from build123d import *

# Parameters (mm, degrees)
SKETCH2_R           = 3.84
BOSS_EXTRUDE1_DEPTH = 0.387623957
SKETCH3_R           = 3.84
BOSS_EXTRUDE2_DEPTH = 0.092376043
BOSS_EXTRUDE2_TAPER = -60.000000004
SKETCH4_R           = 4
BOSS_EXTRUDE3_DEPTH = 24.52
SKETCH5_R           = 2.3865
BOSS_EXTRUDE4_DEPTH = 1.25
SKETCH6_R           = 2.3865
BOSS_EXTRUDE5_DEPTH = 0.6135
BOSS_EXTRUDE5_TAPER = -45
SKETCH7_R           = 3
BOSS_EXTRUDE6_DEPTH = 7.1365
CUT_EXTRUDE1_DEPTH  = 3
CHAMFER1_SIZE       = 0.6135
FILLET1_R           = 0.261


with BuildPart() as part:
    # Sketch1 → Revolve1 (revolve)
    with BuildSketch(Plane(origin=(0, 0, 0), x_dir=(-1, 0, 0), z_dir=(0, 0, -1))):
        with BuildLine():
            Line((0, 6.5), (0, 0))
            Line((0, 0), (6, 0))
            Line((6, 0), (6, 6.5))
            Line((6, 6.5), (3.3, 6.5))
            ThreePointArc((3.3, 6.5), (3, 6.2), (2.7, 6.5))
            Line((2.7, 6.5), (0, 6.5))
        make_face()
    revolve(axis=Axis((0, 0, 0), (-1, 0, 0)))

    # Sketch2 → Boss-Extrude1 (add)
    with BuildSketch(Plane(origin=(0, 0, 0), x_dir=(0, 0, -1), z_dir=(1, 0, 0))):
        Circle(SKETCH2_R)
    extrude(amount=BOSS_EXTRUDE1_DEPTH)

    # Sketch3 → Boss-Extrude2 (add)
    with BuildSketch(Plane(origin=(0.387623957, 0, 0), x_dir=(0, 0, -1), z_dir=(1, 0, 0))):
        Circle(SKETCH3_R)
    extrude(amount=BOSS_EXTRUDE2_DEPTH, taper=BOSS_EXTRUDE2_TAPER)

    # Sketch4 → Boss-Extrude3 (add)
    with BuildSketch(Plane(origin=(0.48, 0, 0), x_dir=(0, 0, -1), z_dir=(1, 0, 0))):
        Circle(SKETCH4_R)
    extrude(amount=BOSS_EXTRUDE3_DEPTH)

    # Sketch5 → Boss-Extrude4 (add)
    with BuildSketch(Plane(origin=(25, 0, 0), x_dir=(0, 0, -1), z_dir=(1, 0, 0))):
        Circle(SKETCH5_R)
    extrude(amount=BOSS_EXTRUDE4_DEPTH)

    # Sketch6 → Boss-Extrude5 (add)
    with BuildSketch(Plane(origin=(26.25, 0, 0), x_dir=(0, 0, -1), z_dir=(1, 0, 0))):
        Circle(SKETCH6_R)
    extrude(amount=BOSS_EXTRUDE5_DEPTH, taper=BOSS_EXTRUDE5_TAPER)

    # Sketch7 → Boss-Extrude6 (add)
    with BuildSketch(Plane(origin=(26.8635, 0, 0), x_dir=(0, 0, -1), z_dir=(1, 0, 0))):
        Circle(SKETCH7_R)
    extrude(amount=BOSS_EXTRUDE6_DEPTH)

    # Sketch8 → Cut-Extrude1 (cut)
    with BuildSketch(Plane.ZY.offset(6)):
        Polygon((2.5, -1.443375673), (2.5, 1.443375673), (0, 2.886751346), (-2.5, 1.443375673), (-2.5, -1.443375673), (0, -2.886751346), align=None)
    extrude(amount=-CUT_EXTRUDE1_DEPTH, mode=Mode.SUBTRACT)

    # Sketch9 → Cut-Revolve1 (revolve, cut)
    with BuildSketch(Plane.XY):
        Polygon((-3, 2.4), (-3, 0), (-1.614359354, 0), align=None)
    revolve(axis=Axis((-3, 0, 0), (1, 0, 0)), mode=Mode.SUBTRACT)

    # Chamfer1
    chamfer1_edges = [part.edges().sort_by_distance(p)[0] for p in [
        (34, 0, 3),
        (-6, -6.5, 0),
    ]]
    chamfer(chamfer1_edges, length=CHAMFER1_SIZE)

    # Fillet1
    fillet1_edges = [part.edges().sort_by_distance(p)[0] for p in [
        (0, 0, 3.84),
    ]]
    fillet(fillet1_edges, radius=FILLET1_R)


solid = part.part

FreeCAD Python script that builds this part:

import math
import FreeCAD as App
import Part
import Sketcher
from FreeCAD import Vector
Q = App.Units.Quantity


def edges_at(feature, points):
    """Names of the edges that pass closest to the given points."""
    edges = feature.Shape.Edges
    near = lambda p: min(range(len(edges)), key=lambda i: edges[i].distToShape(Part.Vertex(*p))[0])
    return sorted({f"Edge{near(p) + 1}" for p in points})

doc = App.newDocument("Part")
body = doc.addObject("PartDesign::Body", "Body")

sketch1 = doc.addObject("Sketcher::SketchObject", "Sketch")
body.addObject(sketch1)
sketch1.AttachmentSupport = (doc.XY_Plane, [""])
sketch1.MapMode = "FlatFace"
sketch1.addGeometry(Part.LineSegment(Vector(0, 6.5, 0), Vector(0, 0, 0)), False)
sketch1.addGeometry(Part.LineSegment(Vector(0, 0, 0), Vector(-6, 0, 0)), False)
sketch1.addGeometry(Part.LineSegment(Vector(-6, 0, 0), Vector(-6, 6.5, 0)), False)
sketch1.addGeometry(Part.LineSegment(Vector(-6, 6.5, 0), Vector(-3.3, 6.5, 0)), False)
sketch1.addGeometry(Part.ArcOfCircle(Part.Circle(Vector(-3, 6.5, 0), Vector(0, 0, 1), 0.3), math.radians(180), math.radians(360)), False)
sketch1.addGeometry(Part.LineSegment(Vector(-2.7, 6.5, 0), Vector(0, 6.5, 0)), False)
sketch1.addConstraint(Sketcher.Constraint("Coincident", 0, 2, 1, 1))
sketch1.addConstraint(Sketcher.Constraint("Coincident", 1, 2, 2, 1))
sketch1.addConstraint(Sketcher.Constraint("Coincident", 2, 2, 3, 1))
sketch1.addConstraint(Sketcher.Constraint("Coincident", 3, 2, 4, 1))
sketch1.addConstraint(Sketcher.Constraint("Coincident", 4, 2, 5, 1))
sketch1.addConstraint(Sketcher.Constraint("Coincident", 5, 2, 0, 1))
sketch1.addConstraint(Sketcher.Constraint("Vertical", 0))
sketch1.addConstraint(Sketcher.Constraint("Horizontal", 1))
sketch1.addConstraint(Sketcher.Constraint("Vertical", 2))
sketch1.addConstraint(Sketcher.Constraint("Horizontal", 3))
sketch1.addConstraint(Sketcher.Constraint("Horizontal", 5))
sketch1.addConstraint(Sketcher.Constraint("Coincident", 0, 2, -1, 1))
sketch1.addConstraint(Sketcher.Constraint("Horizontal", 4, 3, 2, 2))
sketch1.addConstraint(Sketcher.Constraint("Horizontal", 3, 2, 4, 2))
sketch1.addConstraint(Sketcher.Constraint("Equal", 3, 5))
sketch1.addConstraint(Sketcher.Constraint("Radius", 4, 0.3))
sketch1.addConstraint(Sketcher.Constraint("DistanceX", 1, 2, 1, 1, 6.0))
sketch1.addConstraint(Sketcher.Constraint("DistanceY", 0, 2, 0, 1, 6.5))
revolution = doc.addObject("PartDesign::Revolution", "Revolution")
body.addObject(revolution)
revolution.Profile = sketch1
revolution.ReferenceAxis = (sketch1, ["H_Axis"])
revolution.Angle = 360

sketch2 = doc.addObject("Sketcher::SketchObject", "Sketch001")
body.addObject(sketch2)
sketch2.AttachmentSupport = (doc.YZ_Plane, [""])
sketch2.MapMode = "FlatFace"
sketch2.addGeometry(Part.Circle(Vector(0, 0, 0), Vector(0, 0, 1), 3.8), False)
sketch2.addConstraint(Sketcher.Constraint("Coincident", 0, 3, -1, 1))
sketch2.addConstraint(Sketcher.Constraint("Diameter", 0, 7.68))
pad1 = doc.addObject("PartDesign::Pad", "Pad")
body.addObject(pad1)
pad1.Profile = sketch2
pad1.Length = 0.387624

sketch3 = doc.addObject("Sketcher::SketchObject", "Sketch002")
body.addObject(sketch3)
sketch3.AttachmentSupport = (doc.YZ_Plane, [""])
sketch3.MapMode = "FlatFace"
sketch3.AttachmentOffset = App.Placement(Vector(0, 0, 0.387624), App.Rotation())
sketch3.addGeometry(Part.Circle(Vector(0, 0, 0), Vector(0, 0, 1), 3.8), False)
sketch3.addConstraint(Sketcher.Constraint("Coincident", 0, 3, -1, 1))
sketch3.addConstraint(Sketcher.Constraint("Diameter", 0, 7.68))
pad2 = doc.addObject("PartDesign::Pad", "Pad001")
body.addObject(pad2)
pad2.Profile = sketch3
pad2.Length = 0.092376
pad2.TaperAngle = 60

sketch4 = doc.addObject("Sketcher::SketchObject", "Sketch003")
body.addObject(sketch4)
sketch4.AttachmentSupport = (doc.YZ_Plane, [""])
sketch4.MapMode = "FlatFace"
sketch4.AttachmentOffset = App.Placement(Vector(0, 0, 0.48), App.Rotation())
sketch4.addGeometry(Part.Circle(Vector(0, 0, 0), Vector(0, 0, 1), 4), False)
sketch4.addConstraint(Sketcher.Constraint("Coincident", 0, 3, -1, 1))
sketch4.addConstraint(Sketcher.Constraint("Diameter", 0, 8.0))
pad3 = doc.addObject("PartDesign::Pad", "Pad002")
body.addObject(pad3)
pad3.Profile = sketch4
pad3.Length = 24.52

sketch5 = doc.addObject("Sketcher::SketchObject", "Sketch004")
body.addObject(sketch5)
sketch5.AttachmentSupport = (doc.YZ_Plane, [""])
sketch5.MapMode = "FlatFace"
sketch5.AttachmentOffset = App.Placement(Vector(0, 0, 25), App.Rotation())
sketch5.addGeometry(Part.Circle(Vector(0, 0, 0), Vector(0, 0, 1), 2.4), False)
sketch5.addConstraint(Sketcher.Constraint("Coincident", 0, 3, -1, 1))
sketch5.addConstraint(Sketcher.Constraint("Diameter", 0, 4.773))
pad4 = doc.addObject("PartDesign::Pad", "Pad003")
body.addObject(pad4)
pad4.Profile = sketch5
pad4.Length = 1.25

sketch6 = doc.addObject("Sketcher::SketchObject", "Sketch005")
body.addObject(sketch6)
sketch6.AttachmentSupport = (doc.YZ_Plane, [""])
sketch6.MapMode = "FlatFace"
sketch6.AttachmentOffset = App.Placement(Vector(0, 0, 26.25), App.Rotation())
sketch6.addGeometry(Part.Circle(Vector(0, 0, 0), Vector(0, 0, 1), 2.4), False)
sketch6.addConstraint(Sketcher.Constraint("Coincident", 0, 3, -1, 1))
sketch6.addConstraint(Sketcher.Constraint("Diameter", 0, 4.773))
pad5 = doc.addObject("PartDesign::Pad", "Pad004")
body.addObject(pad5)
pad5.Profile = sketch6
pad5.Length = 0.6135
pad5.TaperAngle = 45

sketch7 = doc.addObject("Sketcher::SketchObject", "Sketch006")
body.addObject(sketch7)
sketch7.AttachmentSupport = (doc.YZ_Plane, [""])
sketch7.MapMode = "FlatFace"
sketch7.AttachmentOffset = App.Placement(Vector(0, 0, 26.8635), App.Rotation())
sketch7.addGeometry(Part.Circle(Vector(0, 0, 0), Vector(0, 0, 1), 3), False)
sketch7.addConstraint(Sketcher.Constraint("Coincident", 0, 3, -1, 1))
sketch7.addConstraint(Sketcher.Constraint("Diameter", 0, 6.0))
pad6 = doc.addObject("PartDesign::Pad", "Pad005")
body.addObject(pad6)
pad6.Profile = sketch7
pad6.Length = 7.1365

sketch8 = doc.addObject("Sketcher::SketchObject", "Sketch007")
body.addObject(sketch8)
sketch8.AttachmentSupport = (doc.YZ_Plane, [""])
sketch8.MapMode = "FlatFace"
sketch8.AttachmentOffset = App.Placement(Vector(0, 0, -6), App.Rotation())
sketch8.addGeometry(Part.LineSegment(Vector(-1.4, 2.5, 0), Vector(1.4, 2.5, 0)), False)
sketch8.addGeometry(Part.LineSegment(Vector(1.4, 2.5, 0), Vector(2.9, 0, 0)), False)
sketch8.addGeometry(Part.LineSegment(Vector(2.9, 0, 0), Vector(1.4, -2.5, 0)), False)
sketch8.addGeometry(Part.LineSegment(Vector(1.4, -2.5, 0), Vector(-1.4, -2.5, 0)), False)
sketch8.addGeometry(Part.LineSegment(Vector(-1.4, -2.5, 0), Vector(-2.9, 0, 0)), False)
sketch8.addGeometry(Part.LineSegment(Vector(-2.9, 0, 0), Vector(-1.4, 2.5, 0)), False)
sketch8.addConstraint(Sketcher.Constraint("Coincident", 0, 2, 1, 1))
sketch8.addConstraint(Sketcher.Constraint("Coincident", 1, 2, 2, 1))
sketch8.addConstraint(Sketcher.Constraint("Coincident", 2, 2, 3, 1))
sketch8.addConstraint(Sketcher.Constraint("Coincident", 3, 2, 4, 1))
sketch8.addConstraint(Sketcher.Constraint("Coincident", 4, 2, 5, 1))
sketch8.addConstraint(Sketcher.Constraint("Coincident", 5, 2, 0, 1))
sketch8.addConstraint(Sketcher.Constraint("Horizontal", 0))
sketch8.addConstraint(Sketcher.Constraint("Horizontal", 3))
sketch8.addConstraint(Sketcher.Constraint("Symmetric", 0, 2, 3, 2, -1, 1))
sketch8.addConstraint(Sketcher.Constraint("Symmetric", 1, 2, 4, 2, -1, 1))
sketch8.addConstraint(Sketcher.Constraint("PointOnObject", 1, 2, -1))
sketch8.addConstraint(Sketcher.Constraint("Parallel", 2, 5))
sketch8.addConstraint(Sketcher.Constraint("Vertical", 0, 2, 2, 2))
sketch8.addConstraint(Sketcher.Constraint("Angle", 1, Q("-60 deg")))
sketch8.addConstraint(Sketcher.Constraint("DistanceY", 2, 2, 0, 2, 5.0))
sketch8.addConstraint(Sketcher.Constraint("DistanceX", 0, 1, 0, 2, 2.886751))
pocket1 = doc.addObject("PartDesign::Pocket", "Pocket")
body.addObject(pocket1)
pocket1.Profile = sketch8
pocket1.Length = 3
pocket1.Reversed = True

sketch9 = doc.addObject("Sketcher::SketchObject", "Sketch008")
body.addObject(sketch9)
sketch9.AttachmentSupport = (doc.XY_Plane, [""])
sketch9.MapMode = "FlatFace"
sketch9.addGeometry(Part.LineSegment(Vector(-3, 2.4, 0), Vector(-3, 0, 0)), False)
sketch9.addGeometry(Part.LineSegment(Vector(-3, 0, 0), Vector(-1.6, 0, 0)), False)
sketch9.addGeometry(Part.LineSegment(Vector(-1.6, 0, 0), Vector(-3, 2.4, 0)), False)
sketch9.addConstraint(Sketcher.Constraint("Coincident", 0, 2, 1, 1))
sketch9.addConstraint(Sketcher.Constraint("Coincident", 1, 2, 2, 1))
sketch9.addConstraint(Sketcher.Constraint("Coincident", 2, 2, 0, 1))
sketch9.addConstraint(Sketcher.Constraint("Vertical", 0))
sketch9.addConstraint(Sketcher.Constraint("Horizontal", 1))
sketch9.addConstraint(Sketcher.Constraint("PointOnObject", 0, 2, -1))
sketch9.addConstraint(Sketcher.Constraint("Angle", 2, Q("120 deg")))
sketch9.addConstraint(Sketcher.Constraint("DistanceY", 0, 2, 0, 1, 2.4))
sketch9.addConstraint(Sketcher.Constraint("DistanceX", 0, 2, -1, 1, 3.0))
groove = doc.addObject("PartDesign::Groove", "Groove")
body.addObject(groove)
groove.Profile = sketch9
groove.ReferenceAxis = (sketch9, ["H_Axis"])
groove.Angle = 360
doc.recompute()

chamfer = doc.addObject("PartDesign::Chamfer", "Chamfer")
body.addObject(chamfer)
chamfer.Base = (groove, edges_at(groove, [(34, 0, 3), (-6, -6.5, 0)]))
chamfer.Size = 0.6135
doc.recompute()

fillet = doc.addObject("PartDesign::Fillet", "Fillet")
body.addObject(fillet)
fillet.Base = (chamfer, edges_at(chamfer, [(0, 0, 3.84)]))
fillet.Radius = 0.261

doc.recompute()
